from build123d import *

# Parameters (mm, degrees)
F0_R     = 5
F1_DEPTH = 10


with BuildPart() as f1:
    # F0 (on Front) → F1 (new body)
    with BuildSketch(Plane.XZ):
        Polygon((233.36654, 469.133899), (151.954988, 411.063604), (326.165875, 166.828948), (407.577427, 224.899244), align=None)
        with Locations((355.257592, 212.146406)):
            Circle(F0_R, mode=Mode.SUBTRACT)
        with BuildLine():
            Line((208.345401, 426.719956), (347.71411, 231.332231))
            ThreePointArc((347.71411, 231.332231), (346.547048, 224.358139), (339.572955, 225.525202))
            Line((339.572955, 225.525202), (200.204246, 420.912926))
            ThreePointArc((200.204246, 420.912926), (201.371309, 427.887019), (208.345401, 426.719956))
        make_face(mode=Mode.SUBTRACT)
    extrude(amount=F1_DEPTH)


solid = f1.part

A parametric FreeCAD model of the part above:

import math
import FreeCAD as App
import Part
import Sketcher
from FreeCAD import Vector
Q = App.Units.Quantity

doc = App.newDocument("Part")
body = doc.addObject("PartDesign::Body", "Body")

# Sketch on XZ plane
sketch1 = body.newObject("Sketcher::SketchObject", "Sketch")
sketch1.AttachmentSupport = (doc.getObject("XZ_Plane"), [""])
sketch1.MapMode = "FlatFace"
sketch1.addGeometry(Part.LineSegment(Vector(233.4, 469.1, 0), Vector(152, 411.1, 0)), False)
sketch1.addGeometry(Part.LineSegment(Vector(152, 411.1, 0), Vector(326.2, 166.8, 0)), False)
sketch1.addGeometry(Part.LineSegment(Vector(326.2, 166.8, 0), Vector(407.6, 224.9, 0)), False)
sketch1.addGeometry(Part.LineSegment(Vector(407.6, 224.9, 0), Vector(233.4, 469.1, 0)), False)
sketch1.addGeometry(Part.Circle(Vector(355.3, 212.1, 0), Vector(0, 0, 1), 5), False)
sketch1.addGeometry(Part.ArcOfCircle(Part.Circle(Vector(204.3, 423.8, 0), Vector(0, 0, 1), 5), math.radians(36), math.radians(216)), False)
sketch1.addGeometry(Part.LineSegment(Vector(208.3, 426.7, 0), Vector(347.7, 231.3, 0)), False)
sketch1.addGeometry(Part.ArcOfCircle(Part.Circle(Vector(343.6, 228.4, 0), Vector(0, 0, 1), 5), math.radians(-145), math.radians(36)), False)
sketch1.addGeometry(Part.LineSegment(Vector(339.6, 225.5, 0), Vector(200.2, 420.9, 0)), False)
sketch1.addConstraint(Sketcher.Constraint("Coincident", 0, 2, 1, 1))
sketch1.addConstraint(Sketcher.Constraint("Coincident", 1, 2, 2, 1))
sketch1.addConstraint(Sketcher.Constraint("Coincident", 2, 2, 3, 1))
sketch1.addConstraint(Sketcher.Constraint("Coincident", 3, 2, 0, 1))
sketch1.addConstraint(Sketcher.Constraint("Tangent", 5, 1, 6, 1))
sketch1.addConstraint(Sketcher.Constraint("Tangent", 6, 2, 7, 2))
sketch1.addConstraint(Sketcher.Constraint("Tangent", 7, 1, 8, 1))
sketch1.addConstraint(Sketcher.Constraint("Tangent", 8, 2, 5, 2))
sketch1.addConstraint(Sketcher.Constraint("Equal", 4, 5))
sketch1.addConstraint(Sketcher.Constraint("Equal", 5, 7))
sketch1.addConstraint(Sketcher.Constraint("Perpendicular", 0, 1))
sketch1.addConstraint(Sketcher.Constraint("Perpendicular", 1, 2))
sketch1.addConstraint(Sketcher.Constraint("Perpendicular", 2, 3))
sketch1.addConstraint(Sketcher.Constraint("Parallel", 3, 6))
sketch1.addConstraint(Sketcher.Constraint("Diameter", 4, 10.0))
sketch1.addConstraint(Sketcher.Constraint("Distance", 0, 100.0))
sketch1.addConstraint(Sketcher.Constraint("Distance", 1, 300.000001))
sketch1.addConstraint(Sketcher.Constraint("Distance", 6, 240.0))
sketch1.addConstraint(Sketcher.Constraint("Angle", 0, Q("-144.5 deg")))
sketch1.addConstraint(Sketcher.Constraint("DistanceY", -1, 1, 3, 2, 469.133899))
sketch1.addConstraint(Sketcher.Constraint("DistanceX", -1, 1, 5, 1, 208.345401))
sketch1.addConstraint(Sketcher.Constraint("DistanceY", -1, 1, 7, 1, 225.525202))
sketch1.addConstraint(Sketcher.Constraint("DistanceX", -1, 1, 4, 3, 355.257592))
sketch1.addConstraint(Sketcher.Constraint("DistanceX", -1, 1, 3, 2, 233.36654))
sketch1.addConstraint(Sketcher.Constraint("DistanceY", 4, 3, 7, 3, 16.28231))
pad1 = body.newObject("PartDesign::Pad", "Pad")
pad1.Profile = sketch1
pad1.Length = 10

doc.recompute()
